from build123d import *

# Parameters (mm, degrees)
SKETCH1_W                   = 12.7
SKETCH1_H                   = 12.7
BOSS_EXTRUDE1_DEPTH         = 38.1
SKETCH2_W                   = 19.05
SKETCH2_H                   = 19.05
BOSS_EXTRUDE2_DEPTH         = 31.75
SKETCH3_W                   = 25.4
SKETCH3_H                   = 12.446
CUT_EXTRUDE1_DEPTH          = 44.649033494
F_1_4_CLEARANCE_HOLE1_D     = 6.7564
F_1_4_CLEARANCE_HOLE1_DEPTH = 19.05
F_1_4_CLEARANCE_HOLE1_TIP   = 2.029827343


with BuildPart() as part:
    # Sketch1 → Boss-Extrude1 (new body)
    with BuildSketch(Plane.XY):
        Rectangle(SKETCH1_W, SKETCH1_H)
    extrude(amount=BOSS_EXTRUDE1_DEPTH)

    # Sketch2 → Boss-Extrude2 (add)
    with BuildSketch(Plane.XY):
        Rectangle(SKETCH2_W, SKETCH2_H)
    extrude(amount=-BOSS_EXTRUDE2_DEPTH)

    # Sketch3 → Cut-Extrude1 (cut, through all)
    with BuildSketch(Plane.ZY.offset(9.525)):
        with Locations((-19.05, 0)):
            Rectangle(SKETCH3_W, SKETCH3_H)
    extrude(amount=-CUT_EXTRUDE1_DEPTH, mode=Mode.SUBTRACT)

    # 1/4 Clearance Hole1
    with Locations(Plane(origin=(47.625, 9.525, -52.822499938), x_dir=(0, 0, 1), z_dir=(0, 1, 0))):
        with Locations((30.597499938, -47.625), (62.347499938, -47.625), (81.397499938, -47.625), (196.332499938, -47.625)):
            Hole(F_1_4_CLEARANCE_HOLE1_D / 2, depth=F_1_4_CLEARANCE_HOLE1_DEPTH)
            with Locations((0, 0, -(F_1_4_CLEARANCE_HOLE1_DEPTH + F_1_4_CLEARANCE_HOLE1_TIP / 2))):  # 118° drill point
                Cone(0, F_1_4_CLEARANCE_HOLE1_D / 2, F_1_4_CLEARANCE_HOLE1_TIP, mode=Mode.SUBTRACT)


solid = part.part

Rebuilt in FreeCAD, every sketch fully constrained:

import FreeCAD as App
import Part
import Sketcher
from FreeCAD import Vector
Q = App.Units.Quantity

doc = App.newDocument("Part")
body = doc.addObject("PartDesign::Body", "Body")

# Sketch on XY plane
sketch1 = doc.addObject("Sketcher::SketchObject", "Sketch")
body.addObject(sketch1)
sketch1.AttachmentSupport = (doc.XY_Plane, [""])
sketch1.MapMode = "FlatFace"
sketch1.addGeometry([
    Part.LineSegment(Vector(-6.35, 6.35, 0), Vector(-6.35, -6.35, 0)),
    Part.LineSegment(Vector(-6.35, -6.35, 0), Vector(6.35, -6.35, 0)),
    Part.LineSegment(Vector(6.35, -6.35, 0), Vector(6.35, 6.35, 0)),
    Part.LineSegment(Vector(6.35, 6.35, 0), Vector(-6.35, 6.35, 0)),
], False)
sketch1.addConstraint([
    Sketcher.Constraint("Coincident", 0, 2, 1, 1),
    Sketcher.Constraint("Coincident", 1, 2, 2, 1),
    Sketcher.Constraint("Coincident", 2, 2, 3, 1),
    Sketcher.Constraint("Coincident", 3, 2, 0, 1),
    Sketcher.Constraint("Vertical", 0),
    Sketcher.Constraint("Horizontal", 1),
    Sketcher.Constraint("Vertical", 2),
    Sketcher.Constraint("Horizontal", 3),
    Sketcher.Constraint("Symmetric", 0, 2, 2, 2, -1, 1),
    Sketcher.Constraint("Equal", 3, 0),
    Sketcher.Constraint("DistanceX", 1, 1, 1, 2, Q("0.5 in")),
])
pad1 = doc.addObject("PartDesign::Pad", "Pad")
body.addObject(pad1)
pad1.Profile = sketch1
pad1.Length = Q("1.5 in")

# Sketch on XY plane
sketch2 = doc.addObject("Sketcher::SketchObject", "Sketch001")
body.addObject(sketch2)
sketch2.AttachmentSupport = (doc.XY_Plane, [""])
sketch2.MapMode = "FlatFace"
sketch2.addGeometry([
    Part.LineSegment(Vector(-9.525, 9.525, 0), Vector(-9.525, -9.525, 0)),
    Part.LineSegment(Vector(-9.525, -9.525, 0), Vector(9.525, -9.525, 0)),
    Part.LineSegment(Vector(9.525, -9.525, 0), Vector(9.525, 9.525, 0)),
    Part.LineSegment(Vector(9.525, 9.525, 0), Vector(-9.525, 9.525, 0)),
], False)
sketch2.addConstraint([
    Sketcher.Constraint("Coincident", 0, 2, 1, 1),
    Sketcher.Constraint("Coincident", 1, 2, 2, 1),
    Sketcher.Constraint("Coincident", 2, 2, 3, 1),
    Sketcher.Constraint("Coincident", 3, 2, 0, 1),
    Sketcher.Constraint("Vertical", 0),
    Sketcher.Constraint("Horizontal", 1),
    Sketcher.Constraint("Vertical", 2),
    Sketcher.Constraint("Horizontal", 3),
    Sketcher.Constraint("Symmetric", 0, 2, 2, 2, -1, 1),
    Sketcher.Constraint("Equal", 3, 0),
    Sketcher.Constraint("DistanceX", 1, 1, 1, 2, Q("0.75 in")),
])
pad2 = doc.addObject("PartDesign::Pad", "Pad001")
body.addObject(pad2)
pad2.Profile = sketch2
pad2.Length = Q("1.25 in")
pad2.Reversed = True

# Sketch on YZ plane
sketch3 = doc.addObject("Sketcher::SketchObject", "Sketch002")
body.addObject(sketch3)
sketch3.AttachmentSupport = (doc.YZ_Plane, [""])
sketch3.MapMode = "FlatFace"
sketch3.AttachmentOffset = App.Placement(Vector(0, 0, -0.375 * 25.4), App.Rotation())
sketch3.addGeometry([
    Part.LineSegment(Vector(6.223, -31.75, 0), Vector(-6.223, -31.75, 0)),
    Part.LineSegment(Vector(-6.223, -31.75, 0), Vector(-6.223, -6.35, 0)),
    Part.LineSegment(Vector(-6.223, -6.35, 0), Vector(6.223, -6.35, 0)),
    Part.LineSegment(Vector(6.223, -6.35, 0), Vector(6.223, -31.75, 0)),
], False)
sketch3.addConstraint([
    Sketcher.Constraint("Coincident", 0, 2, 1, 1),
    Sketcher.Constraint("Coincident", 1, 2, 2, 1),
    Sketcher.Constraint("Coincident", 2, 2, 3, 1),
    Sketcher.Constraint("Coincident", 3, 2, 0, 1),
    Sketcher.Constraint("Horizontal", 0),
    Sketcher.Constraint("Vertical", 1),
    Sketcher.Constraint("Horizontal", 2),
    Sketcher.Constraint("Vertical", 3),
    Sketcher.Constraint("DistanceY", 1, 1, 1, 2, Q("1 in")),
    Sketcher.Constraint("DistanceX", 0, 2, 0, 1, Q("0.49 in")),
    Sketcher.Constraint("DistanceY", 0, 2, -1, 1, Q("1.25 in")),
    Sketcher.Constraint("DistanceX", 0, 2, -1, 1, Q("0.245 in")),
])
pocket1 = doc.addObject("PartDesign::Pocket", "Pocket")
body.addObject(pocket1)
pocket1.Profile = sketch3
pocket1.Type = "ThroughAll"
pocket1.Reversed = True

# Sketch on XZ plane
sketch4 = doc.addObject("Sketcher::SketchObject", "Sketch003")
body.addObject(sketch4)
sketch4.AttachmentSupport = (doc.XZ_Plane, [""])
sketch4.MapMode = "FlatFace"
sketch4.AttachmentOffset = App.Placement(Vector(0, 0, -0.375 * 25.4), App.Rotation())
sketch4.addGeometry([
    Part.Circle(Vector(0, -22.225, 0), Vector(0, 0, 1), 3.3782),
    Part.Circle(Vector(0, 9.525, 0), Vector(0, 0, 1), 3.3782),
    Part.Circle(Vector(0, 28.575, 0), Vector(0, 0, 1), 3.3782),
    Part.Circle(Vector(0, 143.51, 0), Vector(0, 0, 1), 3.3782),
], False)
sketch4.addConstraint([
    Sketcher.Constraint("Equal", 0, 1),
    Sketcher.Constraint("Equal", 1, 2),
    Sketcher.Constraint("Equal", 2, 3),
    Sketcher.Constraint("PointOnObject", 0, 3, -2),
    Sketcher.Constraint("PointOnObject", 1, 3, -2),
    Sketcher.Constraint("PointOnObject", 2, 3, -2),
    Sketcher.Constraint("PointOnObject", 3, 3, -2),
    Sketcher.Constraint("Diameter", 0, Q("0.266 in")),
    Sketcher.Constraint("DistanceY", 0, 3, 2, 3, Q("2 in")),
    Sketcher.Constraint("DistanceY", -1, 1, 3, 3, Q("5.65 in")),
    Sketcher.Constraint("DistanceY", 0, 3, 1, 3, Q("1.25 in")),
    Sketcher.Constraint("DistanceY", 0, 3, -1, 1, Q("0.875 in")),
])
doc.recompute()
hole = doc.addObject("PartDesign::Hole", "Hole")
body.addObject(hole)
hole.Profile = sketch4
hole.ThreadType = "None"
hole.Diameter = Q("0.266 in")
hole.DepthType = "Dimension"
hole.Depth = Q("0.75 in")
hole.DrillPoint = "Angled"
hole.DrillPointAngle = 118
hole.Reversed = True

doc.recompute()
